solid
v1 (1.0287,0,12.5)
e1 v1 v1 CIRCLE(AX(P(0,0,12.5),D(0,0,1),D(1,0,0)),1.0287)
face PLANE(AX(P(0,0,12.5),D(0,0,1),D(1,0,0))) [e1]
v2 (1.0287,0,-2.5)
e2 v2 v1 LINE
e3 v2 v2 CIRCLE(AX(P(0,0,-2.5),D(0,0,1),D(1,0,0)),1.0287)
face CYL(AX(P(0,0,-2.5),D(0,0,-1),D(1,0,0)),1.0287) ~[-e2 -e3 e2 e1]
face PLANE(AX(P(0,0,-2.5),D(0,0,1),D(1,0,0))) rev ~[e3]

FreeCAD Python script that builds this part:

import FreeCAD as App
import Part
import Sketcher

V = App.Vector
Q = App.Units.Quantity

doc = App.newDocument("Part")
body = doc.addObject("PartDesign::Body", "Body")

# Sketch on XY plane
sketch1 = doc.addObject("Sketcher::SketchObject", "Sketch")
body.addObject(sketch1)
sketch1.AttachmentSupport = (doc.XY_Plane, [""])
sketch1.MapMode = "FlatFace"
sketch1.AttachmentOffset = App.Placement(V(0, 0, -2.5), App.Rotation())
sketch1.addGeometry(Part.Circle(V(0, 0, 0), V(0, 0, 1), 1), False)
sketch1.addConstraint(Sketcher.Constraint("Coincident", 0, 3, -1, 1))
sketch1.addConstraint(Sketcher.Constraint("Diameter", 0, Q("2.0574 mm")))
pad1 = doc.addObject("PartDesign::Pad", "Pad")
body.addObject(pad1)
pad1.Profile = sketch1
pad1.Length = 15

doc.recompute()
